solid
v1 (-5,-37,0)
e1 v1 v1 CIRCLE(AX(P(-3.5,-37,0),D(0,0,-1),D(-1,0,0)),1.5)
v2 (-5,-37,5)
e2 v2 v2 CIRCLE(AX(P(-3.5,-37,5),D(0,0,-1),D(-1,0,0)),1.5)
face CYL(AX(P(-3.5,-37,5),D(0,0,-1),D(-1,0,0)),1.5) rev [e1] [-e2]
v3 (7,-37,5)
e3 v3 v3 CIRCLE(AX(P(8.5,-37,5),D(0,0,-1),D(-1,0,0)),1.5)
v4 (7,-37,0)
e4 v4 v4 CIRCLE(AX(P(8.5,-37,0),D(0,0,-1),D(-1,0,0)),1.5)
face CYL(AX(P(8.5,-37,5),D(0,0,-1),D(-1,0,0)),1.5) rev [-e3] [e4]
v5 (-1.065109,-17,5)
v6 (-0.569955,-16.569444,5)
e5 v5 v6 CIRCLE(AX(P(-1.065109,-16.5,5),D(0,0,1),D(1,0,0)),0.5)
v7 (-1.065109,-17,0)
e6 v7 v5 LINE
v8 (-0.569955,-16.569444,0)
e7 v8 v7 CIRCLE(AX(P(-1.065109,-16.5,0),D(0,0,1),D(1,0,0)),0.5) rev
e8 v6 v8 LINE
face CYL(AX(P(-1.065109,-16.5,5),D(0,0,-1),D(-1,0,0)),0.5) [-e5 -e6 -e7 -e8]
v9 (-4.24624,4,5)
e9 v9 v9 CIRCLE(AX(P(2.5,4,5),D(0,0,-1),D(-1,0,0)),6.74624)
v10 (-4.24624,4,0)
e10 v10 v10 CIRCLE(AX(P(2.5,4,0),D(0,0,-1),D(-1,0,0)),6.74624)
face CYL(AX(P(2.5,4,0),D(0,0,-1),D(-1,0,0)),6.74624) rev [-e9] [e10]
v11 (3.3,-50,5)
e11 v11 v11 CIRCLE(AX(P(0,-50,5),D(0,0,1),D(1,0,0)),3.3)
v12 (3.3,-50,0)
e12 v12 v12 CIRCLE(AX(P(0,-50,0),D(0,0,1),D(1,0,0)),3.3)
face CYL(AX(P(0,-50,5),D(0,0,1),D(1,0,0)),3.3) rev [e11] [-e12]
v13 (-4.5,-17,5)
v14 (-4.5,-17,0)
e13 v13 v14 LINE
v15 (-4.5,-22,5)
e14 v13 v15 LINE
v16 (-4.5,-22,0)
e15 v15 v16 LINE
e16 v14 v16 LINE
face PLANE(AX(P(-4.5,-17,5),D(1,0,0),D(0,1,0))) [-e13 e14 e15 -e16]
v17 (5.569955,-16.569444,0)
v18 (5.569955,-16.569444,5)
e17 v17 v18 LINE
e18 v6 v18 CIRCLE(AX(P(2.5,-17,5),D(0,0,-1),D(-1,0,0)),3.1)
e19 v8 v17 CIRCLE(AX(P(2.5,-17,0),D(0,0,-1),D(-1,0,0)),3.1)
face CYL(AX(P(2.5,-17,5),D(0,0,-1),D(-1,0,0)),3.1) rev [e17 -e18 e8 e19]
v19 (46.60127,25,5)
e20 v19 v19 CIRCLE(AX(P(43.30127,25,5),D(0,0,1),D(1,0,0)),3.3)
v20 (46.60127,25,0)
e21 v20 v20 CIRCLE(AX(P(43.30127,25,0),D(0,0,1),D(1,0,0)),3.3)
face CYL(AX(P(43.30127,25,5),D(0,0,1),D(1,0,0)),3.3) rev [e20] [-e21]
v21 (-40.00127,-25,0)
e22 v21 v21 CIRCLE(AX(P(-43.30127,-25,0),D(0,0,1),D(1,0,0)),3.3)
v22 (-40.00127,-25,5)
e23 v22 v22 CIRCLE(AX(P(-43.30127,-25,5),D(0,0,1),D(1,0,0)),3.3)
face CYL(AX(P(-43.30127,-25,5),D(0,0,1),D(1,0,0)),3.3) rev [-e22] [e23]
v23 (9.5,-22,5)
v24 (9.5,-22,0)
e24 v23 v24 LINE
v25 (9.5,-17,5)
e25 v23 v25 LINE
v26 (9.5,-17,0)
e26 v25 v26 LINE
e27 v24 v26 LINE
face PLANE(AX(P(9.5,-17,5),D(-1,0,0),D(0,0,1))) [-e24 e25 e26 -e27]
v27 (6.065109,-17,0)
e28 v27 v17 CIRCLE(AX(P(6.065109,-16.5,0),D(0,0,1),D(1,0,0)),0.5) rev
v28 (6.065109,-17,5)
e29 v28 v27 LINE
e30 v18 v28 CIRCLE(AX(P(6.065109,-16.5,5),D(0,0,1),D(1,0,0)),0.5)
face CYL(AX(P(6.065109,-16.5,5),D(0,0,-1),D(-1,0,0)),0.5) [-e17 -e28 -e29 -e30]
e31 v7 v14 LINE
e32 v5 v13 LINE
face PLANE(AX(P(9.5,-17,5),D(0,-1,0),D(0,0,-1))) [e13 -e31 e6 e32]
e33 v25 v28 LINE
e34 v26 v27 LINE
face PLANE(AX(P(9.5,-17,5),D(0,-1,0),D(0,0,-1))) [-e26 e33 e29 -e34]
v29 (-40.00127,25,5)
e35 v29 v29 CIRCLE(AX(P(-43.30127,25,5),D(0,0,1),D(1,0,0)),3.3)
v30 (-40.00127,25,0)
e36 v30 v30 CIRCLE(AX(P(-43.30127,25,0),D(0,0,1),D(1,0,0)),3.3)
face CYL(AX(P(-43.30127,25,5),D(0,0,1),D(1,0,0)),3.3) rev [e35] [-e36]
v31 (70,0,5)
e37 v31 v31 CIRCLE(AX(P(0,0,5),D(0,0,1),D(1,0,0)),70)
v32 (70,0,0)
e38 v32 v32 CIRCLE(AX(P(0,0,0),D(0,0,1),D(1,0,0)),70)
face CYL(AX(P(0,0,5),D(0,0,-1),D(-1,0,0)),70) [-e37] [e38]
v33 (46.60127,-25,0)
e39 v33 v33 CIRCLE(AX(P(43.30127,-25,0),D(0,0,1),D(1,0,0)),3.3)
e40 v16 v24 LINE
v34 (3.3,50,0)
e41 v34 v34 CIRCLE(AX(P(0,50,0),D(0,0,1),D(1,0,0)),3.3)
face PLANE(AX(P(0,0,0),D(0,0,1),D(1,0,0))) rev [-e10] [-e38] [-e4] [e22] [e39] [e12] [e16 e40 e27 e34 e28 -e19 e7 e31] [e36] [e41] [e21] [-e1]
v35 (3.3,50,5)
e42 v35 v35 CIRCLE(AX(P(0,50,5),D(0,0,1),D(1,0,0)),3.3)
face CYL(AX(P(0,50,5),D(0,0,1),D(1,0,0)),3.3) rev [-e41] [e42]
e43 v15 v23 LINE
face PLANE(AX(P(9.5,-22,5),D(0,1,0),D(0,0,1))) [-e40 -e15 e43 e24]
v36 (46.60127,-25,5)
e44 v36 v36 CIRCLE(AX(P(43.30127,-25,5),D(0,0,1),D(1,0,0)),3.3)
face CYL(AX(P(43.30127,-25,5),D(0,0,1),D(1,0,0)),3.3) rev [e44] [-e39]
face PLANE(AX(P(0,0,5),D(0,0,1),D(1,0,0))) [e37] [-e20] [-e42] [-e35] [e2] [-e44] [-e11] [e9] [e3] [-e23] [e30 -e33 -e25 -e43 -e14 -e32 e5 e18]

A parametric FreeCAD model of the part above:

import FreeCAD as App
import Part
import Sketcher
Q = App.Units.Quantity


def edges_at(feature, points):
    """Names of the edges that pass closest to the given points."""
    edges = feature.Shape.Edges
    near = lambda p: min(range(len(edges)), key=lambda i: edges[i].distToShape(Part.Vertex(*p))[0])
    return sorted({f"Edge{near(p) + 1}" for p in points})


def add_polygon(sketch, points):
    """Adds a closed chain of lines whose ends are joined by coincident constraints."""
    first, n = sketch.GeometryCount, len(points)
    for a, b in zip(points, points[1:] + points[:1]):
        sketch.addGeometry(Part.LineSegment(App.Vector(*a, 0), App.Vector(*b, 0)), False)
    for i in range(n):
        sketch.addConstraint(Sketcher.Constraint("Coincident", first + i, 2, first + (i + 1) % n, 1))

doc = App.newDocument("Part")
params = doc.addObject("Spreadsheet::Sheet", "Params")
for row, (alias, value) in enumerate([
    ("sketch1_diameter", "140 mm"),
    ("pad1_length", "5 mm"),
    ("sketch2_diameter", "6 mm"),
    ("sketch3_diameter", "6.6 mm"),
    ("hole_diameter", "6.6 mm"),
    ("sketch4_width", "14 mm"),
    ("sketch4_height", "5 mm"),
    ("sketch5_diameter", "2 mm"),
    ("sketch5_diameter2", "6.2 mm"),
    ("hole2_diameter", "13.49248 mm"),
    ("fillet_radius", "0.5 mm"),
    ("sketch7_diameter", "3 mm"),
], start=1):
    params.set(f"A{row}", alias)
    params.set(f"B{row}", "=" + value)
    params.setAlias(f"B{row}", alias)

body = doc.addObject("PartDesign::Body", "Body")

sketch1 = doc.addObject("Sketcher::SketchObject", "Sketch")
body.addObject(sketch1)
sketch1.AttachmentSupport = (doc.XY_Plane, [""])
sketch1.MapMode = "FlatFace"
sketch1.addGeometry(Part.Circle(App.Vector(0, 0, 0), App.Vector(0, 0, 1), 70), False)
sketch1.addConstraint(Sketcher.Constraint("Coincident", 0, 3, -1, 1))
sketch1.addConstraint(Sketcher.Constraint("Diameter", 0, Q("140 mm")))
sketch1.setExpression("Constraints[1]", "Params.sketch1_diameter")
pad1 = doc.addObject("PartDesign::Pad", "Pad")
body.addObject(pad1)
pad1.Profile = sketch1
pad1.setExpression("Length", "Params.pad1_length")

sketch2 = doc.addObject("Sketcher::SketchObject", "Sketch001")
body.addObject(sketch2)
sketch2.AttachmentSupport = (doc.XY_Plane, [""])
sketch2.MapMode = "FlatFace"
sketch2.addGeometry(Part.Circle(App.Vector(0, 50, 0), App.Vector(0, 0, 1), 3), False)
sketch2.addConstraint(Sketcher.Constraint("PointOnObject", 0, 3, -2))
sketch2.addConstraint(Sketcher.Constraint("Diameter", 0, Q("6 mm")))
sketch2.addConstraint(Sketcher.Constraint("DistanceY", -1, 1, 0, 3, Q("50 mm")))
sketch2.setExpression("Constraints[1]", "Params.sketch2_diameter")
pocket1 = doc.addObject("PartDesign::Pocket", "Pocket")
body.addObject(pocket1)
pocket1.Profile = sketch2
pocket1.Type = "ThroughAll"
pocket1.Reversed = True
doc.recompute()

polarpattern = doc.addObject("PartDesign::PolarPattern", "PolarPattern")
body.addObject(polarpattern)
polarpattern.Originals = [pocket1]
polarpattern.Axis = (doc.Z_Axis, [""])
polarpattern.Angle = 360
polarpattern.Occurrences = 6
body.Tip = polarpattern

sketch3 = doc.addObject("Sketcher::SketchObject", "Sketch002")
body.addObject(sketch3)
sketch3.AttachmentSupport = (doc.XY_Plane, [""])
sketch3.MapMode = "FlatFace"
sketch3.AttachmentOffset = App.Placement(App.Vector(0, 0, 5), App.Rotation())
sketch3.addGeometry(Part.Circle(App.Vector(0, 50, 0), App.Vector(0, 0, 1), 3.3), False)
sketch3.addGeometry(Part.Circle(App.Vector(43.3, 25, 0), App.Vector(0, 0, 1), 3.3), False)
sketch3.addGeometry(Part.Circle(App.Vector(43.3, -25, 0), App.Vector(0, 0, 1), 3.3), False)
sketch3.addGeometry(Part.Circle(App.Vector(0, -50, 0), App.Vector(0, 0, 1), 3.3), False)
sketch3.addGeometry(Part.Circle(App.Vector(-43.3, -25, 0), App.Vector(0, 0, 1), 3.3), False)
sketch3.addGeometry(Part.Circle(App.Vector(-43.3, 25, 0), App.Vector(0, 0, 1), 3.3), False)
sketch3.addConstraint(Sketcher.Constraint("Equal", 0, 1))
sketch3.addConstraint(Sketcher.Constraint("Equal", 1, 2))
sketch3.addConstraint(Sketcher.Constraint("Equal", 2, 3))
sketch3.addConstraint(Sketcher.Constraint("Equal", 3, 4))
sketch3.addConstraint(Sketcher.Constraint("Equal", 4, 5))
sketch3.addConstraint(Sketcher.Constraint("Symmetric", 0, 3, 3, 3, -1, 1))
sketch3.addConstraint(Sketcher.Constraint("Symmetric", 1, 3, 4, 3, -1, 1))
sketch3.addConstraint(Sketcher.Constraint("Symmetric", 2, 3, 5, 3, -1, 1))
sketch3.addConstraint(Sketcher.Constraint("Symmetric", 2, 3, 4, 3, -2))
sketch3.addConstraint(Sketcher.Constraint("PointOnObject", 0, 3, -2))
sketch3.addConstraint(Sketcher.Constraint("Diameter", 0, Q("6.6 mm")))
sketch3.addConstraint(Sketcher.Constraint("DistanceY", -1, 1, 0, 3, Q("50 mm")))
sketch3.addConstraint(Sketcher.Constraint("DistanceY", -1, 1, 1, 3, Q("25 mm")))
sketch3.addConstraint(Sketcher.Constraint("DistanceX", -1, 1, 1, 3, Q("43.30127 mm")))
sketch3.setExpression("Constraints[10]", "Params.sketch3_diameter")
doc.recompute()
hole = doc.addObject("PartDesign::Hole", "Hole")
body.addObject(hole)
hole.Profile = sketch3
hole.ThreadType = "None"
hole.setExpression("Diameter", "Params.hole_diameter")
hole.DepthType = "ThroughAll"

sketch4 = doc.addObject("Sketcher::SketchObject", "Sketch003")
body.addObject(sketch4)
sketch4.AttachmentSupport = (doc.XY_Plane, [""])
sketch4.MapMode = "FlatFace"
add_polygon(sketch4, [(-4, -17), (-4, -22), (10, -22), (10, -17)])
sketch4.addConstraint(Sketcher.Constraint("Vertical", 0))
sketch4.addConstraint(Sketcher.Constraint("Horizontal", 1))
sketch4.addConstraint(Sketcher.Constraint("Vertical", 2))
sketch4.addConstraint(Sketcher.Constraint("Horizontal", 3))
sketch4.addConstraint(Sketcher.Constraint("DistanceX", 1, 1, 1, 2, Q("14 mm")))
sketch4.addConstraint(Sketcher.Constraint("DistanceY", 0, 2, 0, 1, Q("5 mm")))
sketch4.addConstraint(Sketcher.Constraint("DistanceY", 0, 2, -1, 1, Q("22 mm")))
sketch4.addConstraint(Sketcher.Constraint("DistanceX", 0, 2, -1, 1, Q("4.5 mm")))
sketch4.setExpression("Constraints[8]", "Params.sketch4_width")
sketch4.setExpression("Constraints[9]", "Params.sketch4_height")
pocket2 = doc.addObject("PartDesign::Pocket", "Pocket001")
body.addObject(pocket2)
pocket2.Profile = sketch4
pocket2.Type = "ThroughAll"
pocket2.Reversed = True

sketch5 = doc.addObject("Sketcher::SketchObject", "Sketch004")
body.addObject(sketch5)
sketch5.AttachmentSupport = (doc.XY_Plane, [""])
sketch5.MapMode = "FlatFace"
sketch5.addGeometry(Part.Circle(App.Vector(2.5, 4, 0), App.Vector(0, 0, 1), 1), False)
sketch5.addGeometry(Part.Circle(App.Vector(2.5, -17, 0), App.Vector(0, 0, 1), 3.1), False)
sketch5.addConstraint(Sketcher.Constraint("Vertical", 0, 3, 1, 3))
sketch5.addConstraint(Sketcher.Constraint("Diameter", 0, Q("2 mm")))
sketch5.addConstraint(Sketcher.Constraint("Diameter", 1, Q("6.2 mm")))
sketch5.addConstraint(Sketcher.Constraint("DistanceY", -1, 1, 0, 3, Q("4 mm")))
sketch5.addConstraint(Sketcher.Constraint("DistanceY", 1, 3, -1, 1, Q("17 mm")))
sketch5.addConstraint(Sketcher.Constraint("DistanceX", -1, 1, 0, 3, Q("2.5 mm")))
sketch5.setExpression("Constraints[1]", "Params.sketch5_diameter")
sketch5.setExpression("Constraints[2]", "Params.sketch5_diameter2")
pocket3 = doc.addObject("PartDesign::Pocket", "Pocket002")
body.addObject(pocket3)
pocket3.Profile = sketch5
pocket3.Type = "ThroughAll"
pocket3.Reversed = True

sketch6 = doc.addObject("Sketcher::SketchObject", "Sketch005")
body.addObject(sketch6)
sketch6.AttachmentSupport = (doc.XY_Plane, [""])
sketch6.MapMode = "FlatFace"
sketch6.addGeometry(Part.Circle(App.Vector(2, 4, 0), App.Vector(0, 0, 1), 7), False)
sketch6.addConstraint(Sketcher.Constraint("DistanceY", -1, 1, 0, 3, Q("4 mm")))
sketch6.addConstraint(Sketcher.Constraint("DistanceX", -1, 1, 0, 3, Q("2.5 mm")))
sketch6.addConstraint(Sketcher.Constraint("Diameter", 0, Q("13.49248 mm")))
doc.recompute()
hole2 = doc.addObject("PartDesign::Hole", "Hole001")
body.addObject(hole2)
hole2.Profile = sketch6
hole2.ThreadType = "None"
hole2.setExpression("Diameter", "Params.hole2_diameter")
hole2.DepthType = "ThroughAll"
hole2.Reversed = True
doc.recompute()

fillet = doc.addObject("PartDesign::Fillet", "Fillet")
body.addObject(fillet)
fillet.Base = (hole2, edges_at(hole2, [(5.6, -17, 2.5), (-0.6, -17, 2.5)]))
fillet.setExpression("Radius", "Params.fillet_radius")

sketch7 = doc.addObject("Sketcher::SketchObject", "Sketch006")
body.addObject(sketch7)
sketch7.AttachmentSupport = (doc.XY_Plane, [""])
sketch7.MapMode = "FlatFace"
sketch7.addGeometry(Part.Circle(App.Vector(8.5, -37, 0), App.Vector(0, 0, 1), 1.5), False)
sketch7.addGeometry(Part.Circle(App.Vector(-3.5, -37, 0), App.Vector(0, 0, 1), 1.5), False)
sketch7.addConstraint(Sketcher.Constraint("Equal", 0, 1))
sketch7.addConstraint(Sketcher.Constraint("Horizontal", 0, 3, 1, 3))
sketch7.addConstraint(Sketcher.Constraint("Diameter", 0, Q("3 mm")))
sketch7.addConstraint(Sketcher.Constraint("DistanceY", 0, 3, -1, 1, Q("37 mm")))
sketch7.addConstraint(Sketcher.Constraint("DistanceX", 1, 3, 0, 3, Q("12 mm")))
sketch7.addConstraint(Sketcher.Constraint("DistanceX", -1, 1, 0, 3, Q("8.5 mm")))
sketch7.setExpression("Constraints[2]", "Params.sketch7_diameter")
pocket4 = doc.addObject("PartDesign::Pocket", "Pocket003")
body.addObject(pocket4)
pocket4.Profile = sketch7
pocket4.Type = "ThroughAll"
pocket4.Reversed = True

doc.recompute()
